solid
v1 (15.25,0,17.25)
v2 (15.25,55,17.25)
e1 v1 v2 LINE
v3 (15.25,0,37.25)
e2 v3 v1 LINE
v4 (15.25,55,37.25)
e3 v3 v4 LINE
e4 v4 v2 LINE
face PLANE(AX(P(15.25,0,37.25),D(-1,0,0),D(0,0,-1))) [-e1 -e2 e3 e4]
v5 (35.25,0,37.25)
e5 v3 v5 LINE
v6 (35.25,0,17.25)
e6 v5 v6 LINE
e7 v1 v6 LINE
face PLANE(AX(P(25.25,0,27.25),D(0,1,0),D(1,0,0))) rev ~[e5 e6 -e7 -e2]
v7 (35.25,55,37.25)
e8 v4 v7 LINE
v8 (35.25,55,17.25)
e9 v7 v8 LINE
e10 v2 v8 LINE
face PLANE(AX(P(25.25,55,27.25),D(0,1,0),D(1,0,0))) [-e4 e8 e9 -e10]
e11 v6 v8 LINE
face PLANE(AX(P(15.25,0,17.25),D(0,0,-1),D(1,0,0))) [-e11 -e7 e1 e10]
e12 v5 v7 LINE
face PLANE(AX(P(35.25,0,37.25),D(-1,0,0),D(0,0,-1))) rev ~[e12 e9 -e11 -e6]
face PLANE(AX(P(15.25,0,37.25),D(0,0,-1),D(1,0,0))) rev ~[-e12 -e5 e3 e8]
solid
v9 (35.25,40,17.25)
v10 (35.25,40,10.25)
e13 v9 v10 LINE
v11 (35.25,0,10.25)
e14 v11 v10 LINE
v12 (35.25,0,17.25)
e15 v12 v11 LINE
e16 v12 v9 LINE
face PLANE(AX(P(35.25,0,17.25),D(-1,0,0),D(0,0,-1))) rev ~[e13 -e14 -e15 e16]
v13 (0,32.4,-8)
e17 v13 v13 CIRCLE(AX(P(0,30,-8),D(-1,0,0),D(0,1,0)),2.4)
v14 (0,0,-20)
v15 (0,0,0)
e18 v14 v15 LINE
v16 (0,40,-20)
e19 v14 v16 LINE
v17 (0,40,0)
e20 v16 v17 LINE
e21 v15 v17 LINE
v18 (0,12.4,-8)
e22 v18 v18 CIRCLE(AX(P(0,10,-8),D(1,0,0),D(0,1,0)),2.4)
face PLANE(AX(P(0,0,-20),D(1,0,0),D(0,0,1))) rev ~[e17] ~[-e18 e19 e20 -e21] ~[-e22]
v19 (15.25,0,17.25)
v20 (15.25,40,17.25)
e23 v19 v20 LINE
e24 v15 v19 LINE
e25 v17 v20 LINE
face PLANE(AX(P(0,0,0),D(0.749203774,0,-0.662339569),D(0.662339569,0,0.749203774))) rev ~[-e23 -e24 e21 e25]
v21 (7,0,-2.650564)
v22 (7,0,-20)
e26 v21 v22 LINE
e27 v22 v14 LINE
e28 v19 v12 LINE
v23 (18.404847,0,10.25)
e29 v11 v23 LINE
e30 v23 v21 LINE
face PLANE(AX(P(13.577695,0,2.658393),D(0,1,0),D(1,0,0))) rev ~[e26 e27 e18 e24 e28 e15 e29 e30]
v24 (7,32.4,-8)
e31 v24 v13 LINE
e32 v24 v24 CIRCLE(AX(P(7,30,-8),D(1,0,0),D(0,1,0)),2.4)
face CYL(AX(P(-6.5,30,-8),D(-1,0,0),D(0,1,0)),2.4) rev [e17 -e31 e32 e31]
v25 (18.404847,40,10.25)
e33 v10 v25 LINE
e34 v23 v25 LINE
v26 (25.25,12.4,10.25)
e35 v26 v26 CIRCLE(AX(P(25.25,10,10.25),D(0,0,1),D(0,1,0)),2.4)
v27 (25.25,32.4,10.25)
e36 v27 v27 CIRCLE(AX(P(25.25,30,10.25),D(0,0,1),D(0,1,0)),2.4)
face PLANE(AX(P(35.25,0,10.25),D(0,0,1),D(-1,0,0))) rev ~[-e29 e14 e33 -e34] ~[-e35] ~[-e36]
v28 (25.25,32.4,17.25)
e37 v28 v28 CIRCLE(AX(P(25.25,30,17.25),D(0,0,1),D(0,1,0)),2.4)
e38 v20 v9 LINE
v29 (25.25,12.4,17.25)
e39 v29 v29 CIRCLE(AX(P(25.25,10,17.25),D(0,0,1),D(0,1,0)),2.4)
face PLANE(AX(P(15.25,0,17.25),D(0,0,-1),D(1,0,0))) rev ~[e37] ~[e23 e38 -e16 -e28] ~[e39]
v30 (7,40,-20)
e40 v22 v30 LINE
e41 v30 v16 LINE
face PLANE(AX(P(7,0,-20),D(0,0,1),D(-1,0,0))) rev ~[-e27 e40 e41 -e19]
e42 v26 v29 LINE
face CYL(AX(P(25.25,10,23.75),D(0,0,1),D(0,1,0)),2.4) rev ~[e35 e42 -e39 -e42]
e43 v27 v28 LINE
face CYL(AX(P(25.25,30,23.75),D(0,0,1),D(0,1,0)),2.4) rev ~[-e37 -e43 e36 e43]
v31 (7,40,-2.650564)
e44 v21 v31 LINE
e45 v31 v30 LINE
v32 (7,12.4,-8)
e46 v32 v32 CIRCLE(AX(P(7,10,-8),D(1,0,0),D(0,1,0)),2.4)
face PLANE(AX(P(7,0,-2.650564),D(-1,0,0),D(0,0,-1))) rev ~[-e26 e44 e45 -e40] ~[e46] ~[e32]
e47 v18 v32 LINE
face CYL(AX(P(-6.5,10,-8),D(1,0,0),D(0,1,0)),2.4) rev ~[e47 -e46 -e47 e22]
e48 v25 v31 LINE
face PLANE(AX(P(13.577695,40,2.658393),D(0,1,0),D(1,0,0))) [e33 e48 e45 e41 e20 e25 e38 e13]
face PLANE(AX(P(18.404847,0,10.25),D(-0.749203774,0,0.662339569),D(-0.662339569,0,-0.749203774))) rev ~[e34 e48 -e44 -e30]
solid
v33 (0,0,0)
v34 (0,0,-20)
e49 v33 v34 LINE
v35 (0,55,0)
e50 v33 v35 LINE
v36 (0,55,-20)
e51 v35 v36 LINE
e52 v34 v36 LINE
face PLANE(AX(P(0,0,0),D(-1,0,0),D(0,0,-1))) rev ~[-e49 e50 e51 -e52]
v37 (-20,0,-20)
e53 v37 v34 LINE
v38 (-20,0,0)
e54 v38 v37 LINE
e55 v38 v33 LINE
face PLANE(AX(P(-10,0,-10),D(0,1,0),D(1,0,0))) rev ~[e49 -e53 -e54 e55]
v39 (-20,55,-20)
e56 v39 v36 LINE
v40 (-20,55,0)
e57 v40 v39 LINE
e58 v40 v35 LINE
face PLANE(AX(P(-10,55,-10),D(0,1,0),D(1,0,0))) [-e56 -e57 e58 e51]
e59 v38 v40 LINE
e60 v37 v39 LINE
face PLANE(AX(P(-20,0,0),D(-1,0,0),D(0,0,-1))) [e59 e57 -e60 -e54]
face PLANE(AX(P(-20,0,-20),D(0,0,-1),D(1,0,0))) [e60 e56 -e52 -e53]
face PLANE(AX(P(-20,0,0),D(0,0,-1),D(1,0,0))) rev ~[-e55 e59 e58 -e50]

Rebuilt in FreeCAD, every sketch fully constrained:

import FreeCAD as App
import Part
import Sketcher

V = App.Vector
Q = App.Units.Quantity

doc = App.newDocument("Part")
params = doc.addObject("Spreadsheet::Sheet", "Params")
for row, (alias, value) in enumerate([
    ("sketch1_width", "20 mm"),
    ("pad1_length", "55 mm"),
    ("sketch2_width", "20 mm"),
    ("pad2_length", "55 mm"),
    ("sketch3_width", "20 mm"),
    ("sketch3_width2", "7 mm"),
    ("pad3_length", "40 mm"),
    ("sketch4_height", "27 mm"),
    ("sketch4_width", "2.4 mm"),
    ("groove_angle", "360 deg"),
    ("linearpattern_pitch", "20 mm"),
    ("sketch5_width", "27 mm"),
    ("sketch5_height", "2.4 mm"),
    ("groove2_angle", "360 deg"),
], start=1):
    params.set(f"A{row}", alias)
    params.set(f"B{row}", "=" + value)
    params.setAlias(f"B{row}", alias)

body = doc.addObject("PartDesign::Body", "Body")

sketch1 = body.newObject("Sketcher::SketchObject", "Sketch")
sketch1.AttachmentSupport = (doc.getObject("XZ_Plane"), [""])
sketch1.MapMode = "FlatFace"
sketch1.addGeometry(Part.LineSegment(V(-20, -20, 0), V(-20, 0, 0)), False)
sketch1.addGeometry(Part.LineSegment(V(-20, 0, 0), V(0, 0, 0)), False)
sketch1.addGeometry(Part.LineSegment(V(0, 0, 0), V(0, -20, 0)), False)
sketch1.addGeometry(Part.LineSegment(V(0, -20, 0), V(-20, -20, 0)), False)
sketch1.addConstraint(Sketcher.Constraint("Coincident", 0, 2, 1, 1))
sketch1.addConstraint(Sketcher.Constraint("Coincident", 1, 2, 2, 1))
sketch1.addConstraint(Sketcher.Constraint("Coincident", 2, 2, 3, 1))
sketch1.addConstraint(Sketcher.Constraint("Coincident", 3, 2, 0, 1))
sketch1.addConstraint(Sketcher.Constraint("Vertical", 0))
sketch1.addConstraint(Sketcher.Constraint("Horizontal", 1))
sketch1.addConstraint(Sketcher.Constraint("Vertical", 2))
sketch1.addConstraint(Sketcher.Constraint("Horizontal", 3))
sketch1.addConstraint(Sketcher.Constraint("Coincident", 1, 2, -1, 1))
sketch1.addConstraint(Sketcher.Constraint("Equal", 3, 0))
sketch1.addConstraint(Sketcher.Constraint("DistanceX", 1, 1, 1, 2, Q("20 mm")))
sketch1.setExpression("Constraints[10]", "Params.sketch1_width")
pad1 = body.newObject("PartDesign::Pad", "Pad")
pad1.Profile = sketch1
pad1.setExpression("Length", "Params.pad1_length")
pad1.Reversed = True
body2 = doc.addObject("PartDesign::Body", "Body001")

sketch2 = body2.newObject("Sketcher::SketchObject", "Sketch001")
sketch2.AttachmentSupport = (doc.getObject("XZ_Plane001"), [""])
sketch2.MapMode = "FlatFace"
sketch2.addGeometry(Part.LineSegment(V(15.25, 17.25, 0), V(15.25, 37.25, 0)), False)
sketch2.addGeometry(Part.LineSegment(V(15.25, 37.25, 0), V(35.25, 37.25, 0)), False)
sketch2.addGeometry(Part.LineSegment(V(35.25, 37.25, 0), V(35.25, 17.25, 0)), False)
sketch2.addGeometry(Part.LineSegment(V(35.25, 17.25, 0), V(15.25, 17.25, 0)), False)
sketch2.addConstraint(Sketcher.Constraint("Coincident", 0, 2, 1, 1))
sketch2.addConstraint(Sketcher.Constraint("Coincident", 1, 2, 2, 1))
sketch2.addConstraint(Sketcher.Constraint("Coincident", 2, 2, 3, 1))
sketch2.addConstraint(Sketcher.Constraint("Coincident", 3, 2, 0, 1))
sketch2.addConstraint(Sketcher.Constraint("Vertical", 0))
sketch2.addConstraint(Sketcher.Constraint("Horizontal", 1))
sketch2.addConstraint(Sketcher.Constraint("Vertical", 2))
sketch2.addConstraint(Sketcher.Constraint("Horizontal", 3))
sketch2.addConstraint(Sketcher.Constraint("Equal", 3, 0))
sketch2.addConstraint(Sketcher.Constraint("DistanceX", 1, 1, 1, 2, Q("20 mm")))
sketch2.addConstraint(Sketcher.Constraint("DistanceX", -1, 1, 0, 2, Q("15.25 mm")))
sketch2.addConstraint(Sketcher.Constraint("DistanceY", -1, 1, 0, 2, Q("37.25 mm")))
sketch2.setExpression("Constraints[9]", "Params.sketch2_width")
pad2 = body2.newObject("PartDesign::Pad", "Pad001")
pad2.Profile = sketch2
pad2.setExpression("Length", "Params.pad2_length")
pad2.Reversed = True
body3 = doc.addObject("PartDesign::Body", "Body002")

sketch3 = body3.newObject("Sketcher::SketchObject", "Sketch002")
sketch3.AttachmentSupport = (doc.getObject("XZ_Plane002"), [""])
sketch3.MapMode = "FlatFace"
sketch3.addGeometry(Part.LineSegment(V(0, -20, 0), V(0, 0, 0)), False)
sketch3.addGeometry(Part.LineSegment(V(0, 0, 0), V(15.25, 17.25, 0)), False)
sketch3.addGeometry(Part.LineSegment(V(15.25, 17.25, 0), V(35.25, 17.25, 0)), False)
sketch3.addGeometry(Part.LineSegment(V(35.25, 17.25, 0), V(35.25, 10.25, 0)), False)
sketch3.addGeometry(Part.LineSegment(V(35.25, 10.25, 0), V(18.404847, 10.25, 0)), False)
sketch3.addGeometry(Part.LineSegment(V(18.404847, 10.25, 0), V(7, -2.650564, 0)), False)
sketch3.addGeometry(Part.LineSegment(V(7, -2.650564, 0), V(7, -20, 0)), False)
sketch3.addGeometry(Part.LineSegment(V(7, -20, 0), V(0, -20, 0)), False)
sketch3.addConstraint(Sketcher.Constraint("Coincident", 0, 2, 1, 1))
sketch3.addConstraint(Sketcher.Constraint("Coincident", 1, 2, 2, 1))
sketch3.addConstraint(Sketcher.Constraint("Coincident", 2, 2, 3, 1))
sketch3.addConstraint(Sketcher.Constraint("Coincident", 3, 2, 4, 1))
sketch3.addConstraint(Sketcher.Constraint("Coincident", 4, 2, 5, 1))
sketch3.addConstraint(Sketcher.Constraint("Coincident", 5, 2, 6, 1))
sketch3.addConstraint(Sketcher.Constraint("Coincident", 6, 2, 7, 1))
sketch3.addConstraint(Sketcher.Constraint("Coincident", 7, 2, 0, 1))
sketch3.addConstraint(Sketcher.Constraint("Vertical", 0))
sketch3.addConstraint(Sketcher.Constraint("Horizontal", 2))
sketch3.addConstraint(Sketcher.Constraint("Vertical", 3))
sketch3.addConstraint(Sketcher.Constraint("Horizontal", 4))
sketch3.addConstraint(Sketcher.Constraint("Vertical", 6))
sketch3.addConstraint(Sketcher.Constraint("Horizontal", 7))
sketch3.addConstraint(Sketcher.Constraint("Coincident", 0, 2, -1, 1))
sketch3.addConstraint(Sketcher.Constraint("Parallel", 1, 5))
sketch3.addConstraint(Sketcher.Constraint("Equal", 2, 0))
sketch3.addConstraint(Sketcher.Constraint("Equal", 7, 3))
sketch3.addConstraint(Sketcher.Constraint("DistanceX", 2, 1, 2, 2, Q("20 mm")))
sketch3.addConstraint(Sketcher.Constraint("DistanceX", 7, 2, 7, 1, Q("7 mm")))
sketch3.addConstraint(Sketcher.Constraint("DistanceX", -1, 1, 1, 2, Q("15.25 mm")))
sketch3.addConstraint(Sketcher.Constraint("DistanceY", -1, 1, 1, 2, Q("17.25 mm")))
sketch3.addConstraint(Sketcher.Constraint("DistanceX", 4, 2, 4, 1, Q("16.845153 mm")))
sketch3.setExpression("Constraints[18]", "Params.sketch3_width")
sketch3.setExpression("Constraints[19]", "Params.sketch3_width2")
pad3 = body3.newObject("PartDesign::Pad", "Pad002")
pad3.Profile = sketch3
pad3.setExpression("Length", "Params.pad3_length")
pad3.Reversed = True

sketch4 = body3.newObject("Sketcher::SketchObject", "Sketch003")
sketch4.AttachmentSupport = (doc.getObject("YZ_Plane002"), [""])
sketch4.MapMode = "FlatFace"
sketch4.AttachmentOffset = App.Placement(V(0, 0, 25.25), App.Rotation())
sketch4.addGeometry(Part.LineSegment(V(30, 37.25, 0), V(30, 10.25, 0)), False)
sketch4.addGeometry(Part.LineSegment(V(30, 10.25, 0), V(32.4, 10.25, 0)), False)
sketch4.addGeometry(Part.LineSegment(V(32.4, 10.25, 0), V(32.4, 37.25, 0)), False)
sketch4.addGeometry(Part.LineSegment(V(32.4, 37.25, 0), V(30, 37.25, 0)), False)
sketch4.addGeometry(Part.LineSegment(V(30, 10.25, 0), V(30, 37.25, 0)), True)
sketch4.addConstraint(Sketcher.Constraint("Coincident", 0, 2, 1, 1))
sketch4.addConstraint(Sketcher.Constraint("Coincident", 1, 2, 2, 1))
sketch4.addConstraint(Sketcher.Constraint("Coincident", 2, 2, 3, 1))
sketch4.addConstraint(Sketcher.Constraint("Coincident", 3, 2, 0, 1))
sketch4.addConstraint(Sketcher.Constraint("Vertical", 0))
sketch4.addConstraint(Sketcher.Constraint("Horizontal", 1))
sketch4.addConstraint(Sketcher.Constraint("Vertical", 2))
sketch4.addConstraint(Sketcher.Constraint("Horizontal", 3))
sketch4.addConstraint(Sketcher.Constraint("Vertical", 4))
sketch4.addConstraint(Sketcher.Constraint("Coincident", 4, 1, 0, 2))
sketch4.addConstraint(Sketcher.Constraint("Horizontal", 2, 2, 4, 2))
sketch4.addConstraint(Sketcher.Constraint("DistanceY", 0, 2, 0, 1, Q("27 mm")))
sketch4.addConstraint(Sketcher.Constraint("DistanceX", 1, 1, 1, 2, Q("2.4 mm")))
sketch4.addConstraint(Sketcher.Constraint("DistanceX", -1, 1, 0, 2, Q("30 mm")))
sketch4.addConstraint(Sketcher.Constraint("DistanceY", -1, 1, 0, 2, Q("10.25 mm")))
sketch4.setExpression("Constraints[11]", "Params.sketch4_height")
sketch4.setExpression("Constraints[12]", "Params.sketch4_width")
groove = body3.newObject("PartDesign::Groove", "Groove")
groove.Profile = sketch4
groove.ReferenceAxis = (sketch4, ["Axis0"])
groove.setExpression("Angle", "Params.groove_angle")
doc.recompute()

linearpattern = body3.newObject("PartDesign::LinearPattern", "LinearPattern")
linearpattern.Originals = [groove]
linearpattern.Direction = (doc.getObject("Y_Axis002"), [""])
linearpattern.Mode = "offset"
linearpattern.setExpression("Offset", "Params.linearpattern_pitch")
linearpattern.Occurrences = 2
linearpattern.Reversed = True
body3.Tip = linearpattern
doc.recompute()

datumplane = body3.newObject("PartDesign::Plane", "DatumPlane")
datumplane.Placement = App.Placement(V(8.625, 0, 8.625), App.Rotation(V(0.707106781, 0, -0.707106781), V(0, -1, 0), V(-0.707106781, 0, -0.707106781), "ZXY"))
mirrored = body3.newObject("PartDesign::Mirrored", "Mirrored")
mirrored.Originals = [groove]
mirrored.MirrorPlane = (datumplane, [""])
body3.Tip = mirrored

sketch5 = body3.newObject("Sketcher::SketchObject", "Sketch004")
sketch5.AttachmentSupport = (doc.getObject("XY_Plane002"), [""])
sketch5.MapMode = "FlatFace"
sketch5.AttachmentOffset = App.Placement(V(0, 0, -8), App.Rotation())
sketch5.addGeometry(Part.LineSegment(V(7, 10, 0), V(-20, 10, 0)), False)
sketch5.addGeometry(Part.LineSegment(V(-20, 10, 0), V(-20, 12.4, 0)), False)
sketch5.addGeometry(Part.LineSegment(V(-20, 12.4, 0), V(7, 12.4, 0)), False)
sketch5.addGeometry(Part.LineSegment(V(7, 12.4, 0), V(7, 10, 0)), False)
sketch5.addGeometry(Part.LineSegment(V(-20, 10, 0), V(7, 10, 0)), True)
sketch5.addConstraint(Sketcher.Constraint("Coincident", 0, 2, 1, 1))
sketch5.addConstraint(Sketcher.Constraint("Coincident", 1, 2, 2, 1))
sketch5.addConstraint(Sketcher.Constraint("Coincident", 2, 2, 3, 1))
sketch5.addConstraint(Sketcher.Constraint("Coincident", 3, 2, 0, 1))
sketch5.addConstraint(Sketcher.Constraint("Horizontal", 0))
sketch5.addConstraint(Sketcher.Constraint("Vertical", 1))
sketch5.addConstraint(Sketcher.Constraint("Horizontal", 2))
sketch5.addConstraint(Sketcher.Constraint("Vertical", 3))
sketch5.addConstraint(Sketcher.Constraint("Horizontal", 4))
sketch5.addConstraint(Sketcher.Constraint("Coincident", 4, 1, 0, 2))
sketch5.addConstraint(Sketcher.Constraint("Vertical", 2, 2, 4, 2))
sketch5.addConstraint(Sketcher.Constraint("DistanceX", 0, 2, 0, 1, Q("27 mm")))
sketch5.addConstraint(Sketcher.Constraint("DistanceY", 1, 1, 1, 2, Q("2.4 mm")))
sketch5.addConstraint(Sketcher.Constraint("DistanceX", 0, 2, -1, 1, Q("20 mm")))
sketch5.addConstraint(Sketcher.Constraint("DistanceY", -1, 1, 0, 2, Q("10 mm")))
sketch5.setExpression("Constraints[11]", "Params.sketch5_width")
sketch5.setExpression("Constraints[12]", "Params.sketch5_height")
groove2 = body3.newObject("PartDesign::Groove", "Groove001")
groove2.Profile = sketch5
groove2.ReferenceAxis = (sketch5, ["Axis0"])
groove2.setExpression("Angle", "Params.groove2_angle")

doc.recompute()
